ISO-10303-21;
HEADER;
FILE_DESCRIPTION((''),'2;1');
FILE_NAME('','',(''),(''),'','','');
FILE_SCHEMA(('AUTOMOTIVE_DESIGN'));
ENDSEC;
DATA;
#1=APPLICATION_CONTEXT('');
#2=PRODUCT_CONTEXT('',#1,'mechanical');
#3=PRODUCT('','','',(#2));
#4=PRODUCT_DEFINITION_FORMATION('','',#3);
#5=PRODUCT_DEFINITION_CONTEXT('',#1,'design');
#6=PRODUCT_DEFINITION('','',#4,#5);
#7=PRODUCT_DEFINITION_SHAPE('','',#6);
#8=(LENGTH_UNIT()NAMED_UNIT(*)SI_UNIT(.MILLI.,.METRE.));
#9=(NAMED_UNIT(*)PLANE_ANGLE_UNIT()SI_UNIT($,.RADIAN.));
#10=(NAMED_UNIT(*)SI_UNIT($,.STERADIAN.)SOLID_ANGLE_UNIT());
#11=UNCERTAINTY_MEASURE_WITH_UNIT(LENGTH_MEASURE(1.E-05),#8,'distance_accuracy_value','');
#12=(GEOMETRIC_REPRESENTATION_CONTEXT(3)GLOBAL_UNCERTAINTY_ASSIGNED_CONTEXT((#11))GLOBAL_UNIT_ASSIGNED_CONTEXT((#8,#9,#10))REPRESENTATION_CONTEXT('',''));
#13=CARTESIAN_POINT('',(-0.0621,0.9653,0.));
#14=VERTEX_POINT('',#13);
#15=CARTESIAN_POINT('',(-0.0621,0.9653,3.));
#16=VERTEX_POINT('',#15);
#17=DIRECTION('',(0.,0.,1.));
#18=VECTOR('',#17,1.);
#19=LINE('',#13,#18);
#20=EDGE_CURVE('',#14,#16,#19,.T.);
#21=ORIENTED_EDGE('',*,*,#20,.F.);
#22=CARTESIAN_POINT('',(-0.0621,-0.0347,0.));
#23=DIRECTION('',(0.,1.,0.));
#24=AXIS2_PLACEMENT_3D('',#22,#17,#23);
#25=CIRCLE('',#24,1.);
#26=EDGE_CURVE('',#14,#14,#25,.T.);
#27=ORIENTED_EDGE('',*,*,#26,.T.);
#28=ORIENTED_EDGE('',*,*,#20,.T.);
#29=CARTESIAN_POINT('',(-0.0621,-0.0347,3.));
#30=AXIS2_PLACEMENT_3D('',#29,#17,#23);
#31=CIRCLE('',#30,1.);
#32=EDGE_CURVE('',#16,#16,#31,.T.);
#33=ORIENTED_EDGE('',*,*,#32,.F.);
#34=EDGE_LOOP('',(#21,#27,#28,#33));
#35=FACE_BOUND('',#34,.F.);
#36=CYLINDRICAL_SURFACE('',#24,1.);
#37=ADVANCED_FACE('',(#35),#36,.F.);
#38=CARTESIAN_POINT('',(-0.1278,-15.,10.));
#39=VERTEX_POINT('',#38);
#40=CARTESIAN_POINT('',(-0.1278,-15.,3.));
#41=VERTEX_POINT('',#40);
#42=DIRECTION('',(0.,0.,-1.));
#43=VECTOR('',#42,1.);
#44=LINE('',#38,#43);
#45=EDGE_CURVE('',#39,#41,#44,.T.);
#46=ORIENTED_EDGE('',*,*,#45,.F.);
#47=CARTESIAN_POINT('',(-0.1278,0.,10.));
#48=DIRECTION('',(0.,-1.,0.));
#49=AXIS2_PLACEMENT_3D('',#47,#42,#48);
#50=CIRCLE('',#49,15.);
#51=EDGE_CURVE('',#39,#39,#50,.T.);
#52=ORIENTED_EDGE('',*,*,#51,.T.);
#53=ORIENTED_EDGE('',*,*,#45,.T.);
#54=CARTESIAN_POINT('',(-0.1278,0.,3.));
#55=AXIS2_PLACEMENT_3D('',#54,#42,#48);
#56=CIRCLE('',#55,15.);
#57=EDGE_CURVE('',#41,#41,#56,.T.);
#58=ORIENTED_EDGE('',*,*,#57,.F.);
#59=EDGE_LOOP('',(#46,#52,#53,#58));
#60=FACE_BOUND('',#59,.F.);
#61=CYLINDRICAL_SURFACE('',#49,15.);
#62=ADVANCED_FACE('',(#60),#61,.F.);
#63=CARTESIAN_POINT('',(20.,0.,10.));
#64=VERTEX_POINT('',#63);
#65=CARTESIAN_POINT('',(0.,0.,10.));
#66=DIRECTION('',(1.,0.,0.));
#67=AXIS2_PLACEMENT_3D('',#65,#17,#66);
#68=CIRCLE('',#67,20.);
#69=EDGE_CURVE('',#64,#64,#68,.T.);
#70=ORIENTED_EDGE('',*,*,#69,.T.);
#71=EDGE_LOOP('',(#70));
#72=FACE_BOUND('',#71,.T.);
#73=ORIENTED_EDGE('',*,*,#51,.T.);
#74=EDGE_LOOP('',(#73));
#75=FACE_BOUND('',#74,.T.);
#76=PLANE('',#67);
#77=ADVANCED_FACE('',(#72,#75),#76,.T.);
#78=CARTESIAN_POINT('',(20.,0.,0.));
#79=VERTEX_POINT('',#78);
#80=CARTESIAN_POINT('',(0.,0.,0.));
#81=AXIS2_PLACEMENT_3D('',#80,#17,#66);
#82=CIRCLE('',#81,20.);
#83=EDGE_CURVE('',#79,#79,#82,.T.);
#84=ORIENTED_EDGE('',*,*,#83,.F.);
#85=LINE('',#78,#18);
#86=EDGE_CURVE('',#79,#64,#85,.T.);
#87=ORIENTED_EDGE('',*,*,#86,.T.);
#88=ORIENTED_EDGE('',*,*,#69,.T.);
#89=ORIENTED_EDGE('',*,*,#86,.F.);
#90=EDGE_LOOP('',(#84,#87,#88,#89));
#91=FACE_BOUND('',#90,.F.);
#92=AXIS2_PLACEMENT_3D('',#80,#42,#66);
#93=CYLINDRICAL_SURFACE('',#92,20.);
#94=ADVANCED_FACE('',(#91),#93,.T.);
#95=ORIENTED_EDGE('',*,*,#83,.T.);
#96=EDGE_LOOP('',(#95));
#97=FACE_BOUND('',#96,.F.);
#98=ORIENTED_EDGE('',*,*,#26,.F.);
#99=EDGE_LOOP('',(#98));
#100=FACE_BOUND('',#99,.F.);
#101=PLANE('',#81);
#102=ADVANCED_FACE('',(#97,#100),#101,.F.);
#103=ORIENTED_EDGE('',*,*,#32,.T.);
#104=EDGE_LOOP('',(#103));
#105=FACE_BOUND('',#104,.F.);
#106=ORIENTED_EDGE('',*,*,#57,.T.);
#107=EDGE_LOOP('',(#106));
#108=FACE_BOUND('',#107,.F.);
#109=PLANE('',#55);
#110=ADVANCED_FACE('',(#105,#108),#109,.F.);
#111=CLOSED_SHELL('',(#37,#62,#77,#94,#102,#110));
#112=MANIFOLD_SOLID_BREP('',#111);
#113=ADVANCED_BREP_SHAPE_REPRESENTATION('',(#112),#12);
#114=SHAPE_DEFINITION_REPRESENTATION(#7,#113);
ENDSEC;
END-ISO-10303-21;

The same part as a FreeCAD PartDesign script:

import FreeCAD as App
import Part
import Sketcher

V = App.Vector
Q = App.Units.Quantity

doc = App.newDocument("Part")
body = doc.addObject("PartDesign::Body", "Body")

# Sketch on XY plane
sketch1 = doc.addObject("Sketcher::SketchObject", "Sketch")
body.addObject(sketch1)
sketch1.AttachmentSupport = (doc.XY_Plane, [""])
sketch1.MapMode = "FlatFace"
sketch1.addGeometry(Part.Circle(V(0, 0, 0), V(0, 0, 1), 20), False)
sketch1.addConstraint(Sketcher.Constraint("Coincident", 0, 3, -1, 1))
sketch1.addConstraint(Sketcher.Constraint("Diameter", 0, Q("40 mm")))
pad1 = doc.addObject("PartDesign::Pad", "Pad")
body.addObject(pad1)
pad1.Profile = sketch1
pad1.Length = 10

# Sketch on XY plane
sketch2 = doc.addObject("Sketcher::SketchObject", "Sketch001")
body.addObject(sketch2)
sketch2.AttachmentSupport = (doc.XY_Plane, [""])
sketch2.MapMode = "FlatFace"
sketch2.AttachmentOffset = App.Placement(V(0, 0, 10), App.Rotation())
sketch2.addGeometry(Part.Circle(V(0, 0, 0), V(0, 0, 1), 15), False)
sketch2.addConstraint(Sketcher.Constraint("PointOnObject", 0, 3, -1))
sketch2.addConstraint(Sketcher.Constraint("Diameter", 0, Q("30 mm")))
sketch2.addConstraint(Sketcher.Constraint("DistanceX", 0, 3, -1, 1, Q("0.1278 mm")))
doc.recompute()
hole = doc.addObject("PartDesign::Hole", "Hole")
body.addObject(hole)
hole.Profile = sketch2
hole.ThreadType = "None"
hole.Diameter = 30
hole.DepthType = "Dimension"
hole.Depth = 7
hole.DrillPoint = "Flat"

# Sketch on XY plane
sketch3 = doc.addObject("Sketcher::SketchObject", "Sketch002")
body.addObject(sketch3)
sketch3.AttachmentSupport = (doc.XY_Plane, [""])
sketch3.MapMode = "FlatFace"
sketch3.addGeometry(Part.Circle(V(-0.1, 0, 0), V(0, 0, 1), 1), False)
sketch3.addConstraint(Sketcher.Constraint("Diameter", 0, Q("2 mm")))
sketch3.addConstraint(Sketcher.Constraint("DistanceX", 0, 3, -1, 1, Q("0.062 mm")))
sketch3.addConstraint(Sketcher.Constraint("DistanceY", 0, 3, -1, 1, Q("0.0347 mm")))
doc.recompute()
hole2 = doc.addObject("PartDesign::Hole", "Hole001")
body.addObject(hole2)
hole2.Profile = sketch3
hole2.ThreadType = "None"
hole2.Diameter = 2
hole2.DepthType = "Dimension"
hole2.Depth = 7
hole2.DrillPoint = "Flat"
hole2.Reversed = True

doc.recompute()
